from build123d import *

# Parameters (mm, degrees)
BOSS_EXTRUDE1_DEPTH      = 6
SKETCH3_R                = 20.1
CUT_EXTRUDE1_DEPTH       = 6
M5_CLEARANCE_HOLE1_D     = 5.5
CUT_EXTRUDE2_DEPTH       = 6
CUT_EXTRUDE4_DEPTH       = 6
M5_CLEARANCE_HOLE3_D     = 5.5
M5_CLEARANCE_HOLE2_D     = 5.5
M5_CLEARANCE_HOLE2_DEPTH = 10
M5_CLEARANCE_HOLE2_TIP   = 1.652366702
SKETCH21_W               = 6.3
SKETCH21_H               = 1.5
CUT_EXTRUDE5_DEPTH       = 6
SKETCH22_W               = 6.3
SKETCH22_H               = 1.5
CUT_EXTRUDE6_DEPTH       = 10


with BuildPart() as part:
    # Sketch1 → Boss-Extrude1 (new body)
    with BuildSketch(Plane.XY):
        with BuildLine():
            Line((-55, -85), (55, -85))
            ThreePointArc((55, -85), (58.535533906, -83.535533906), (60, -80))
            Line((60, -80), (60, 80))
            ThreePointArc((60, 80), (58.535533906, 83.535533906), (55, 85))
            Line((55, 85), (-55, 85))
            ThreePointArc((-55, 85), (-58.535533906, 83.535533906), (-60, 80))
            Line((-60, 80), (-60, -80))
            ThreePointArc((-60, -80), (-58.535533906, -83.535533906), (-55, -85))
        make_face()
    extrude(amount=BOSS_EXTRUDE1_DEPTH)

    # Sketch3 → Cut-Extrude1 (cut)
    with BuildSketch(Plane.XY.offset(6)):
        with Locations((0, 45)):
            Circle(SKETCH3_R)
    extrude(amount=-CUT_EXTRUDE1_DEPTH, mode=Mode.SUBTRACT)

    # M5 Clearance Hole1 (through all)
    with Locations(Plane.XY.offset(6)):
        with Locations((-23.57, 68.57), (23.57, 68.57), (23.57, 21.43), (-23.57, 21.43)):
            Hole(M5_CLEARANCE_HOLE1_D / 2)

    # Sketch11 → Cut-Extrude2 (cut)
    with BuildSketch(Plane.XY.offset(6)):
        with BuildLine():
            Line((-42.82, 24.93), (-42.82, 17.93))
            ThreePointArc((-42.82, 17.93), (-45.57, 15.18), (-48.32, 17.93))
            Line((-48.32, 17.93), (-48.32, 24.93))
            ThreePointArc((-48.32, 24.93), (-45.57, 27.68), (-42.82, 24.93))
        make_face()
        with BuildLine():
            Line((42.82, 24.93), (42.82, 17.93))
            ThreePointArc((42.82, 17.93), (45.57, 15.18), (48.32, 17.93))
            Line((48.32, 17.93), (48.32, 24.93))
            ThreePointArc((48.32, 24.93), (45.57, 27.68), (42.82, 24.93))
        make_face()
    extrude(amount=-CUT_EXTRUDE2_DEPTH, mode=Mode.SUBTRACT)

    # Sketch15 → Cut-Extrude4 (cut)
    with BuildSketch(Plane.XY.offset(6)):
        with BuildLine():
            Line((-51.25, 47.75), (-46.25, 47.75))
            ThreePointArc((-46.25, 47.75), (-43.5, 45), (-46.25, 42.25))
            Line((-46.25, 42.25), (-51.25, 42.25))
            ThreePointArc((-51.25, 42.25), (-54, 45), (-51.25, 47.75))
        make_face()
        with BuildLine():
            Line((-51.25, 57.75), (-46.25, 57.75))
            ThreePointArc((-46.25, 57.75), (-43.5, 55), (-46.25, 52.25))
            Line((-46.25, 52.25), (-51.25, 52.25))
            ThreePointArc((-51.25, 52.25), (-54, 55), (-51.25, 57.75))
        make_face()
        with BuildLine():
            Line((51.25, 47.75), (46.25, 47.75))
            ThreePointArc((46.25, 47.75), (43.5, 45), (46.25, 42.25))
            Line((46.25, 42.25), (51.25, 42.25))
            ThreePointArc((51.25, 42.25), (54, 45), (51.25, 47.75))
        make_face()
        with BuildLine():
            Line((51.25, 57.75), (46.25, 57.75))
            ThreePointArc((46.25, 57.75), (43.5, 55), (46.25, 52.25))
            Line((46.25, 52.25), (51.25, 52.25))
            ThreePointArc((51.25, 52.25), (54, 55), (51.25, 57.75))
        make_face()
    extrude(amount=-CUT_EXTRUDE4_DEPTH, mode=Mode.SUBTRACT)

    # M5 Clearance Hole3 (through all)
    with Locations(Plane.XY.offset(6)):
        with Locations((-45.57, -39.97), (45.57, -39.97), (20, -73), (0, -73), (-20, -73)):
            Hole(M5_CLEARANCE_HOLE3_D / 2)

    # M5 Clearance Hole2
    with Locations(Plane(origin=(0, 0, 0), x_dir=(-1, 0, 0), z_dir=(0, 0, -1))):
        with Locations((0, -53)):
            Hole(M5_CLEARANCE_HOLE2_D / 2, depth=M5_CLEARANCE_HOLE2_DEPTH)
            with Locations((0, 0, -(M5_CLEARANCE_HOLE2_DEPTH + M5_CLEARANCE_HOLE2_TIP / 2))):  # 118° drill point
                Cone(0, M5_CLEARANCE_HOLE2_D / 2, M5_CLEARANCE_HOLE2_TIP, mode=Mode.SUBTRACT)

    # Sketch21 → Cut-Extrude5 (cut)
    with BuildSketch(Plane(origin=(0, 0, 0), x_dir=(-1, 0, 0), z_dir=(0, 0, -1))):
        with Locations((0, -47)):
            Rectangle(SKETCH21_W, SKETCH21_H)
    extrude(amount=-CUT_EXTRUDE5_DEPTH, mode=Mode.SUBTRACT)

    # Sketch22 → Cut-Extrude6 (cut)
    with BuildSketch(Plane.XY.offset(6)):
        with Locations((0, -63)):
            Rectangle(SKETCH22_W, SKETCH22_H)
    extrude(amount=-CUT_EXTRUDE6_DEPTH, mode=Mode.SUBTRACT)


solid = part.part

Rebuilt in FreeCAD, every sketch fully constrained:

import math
import FreeCAD as App
import Part
import Sketcher

V = App.Vector
Q = App.Units.Quantity

doc = App.newDocument("Part")
body = doc.addObject("PartDesign::Body", "Body")

# Sketch on XY plane
sketch1 = body.newObject("Sketcher::SketchObject", "Sketch")
sketch1.AttachmentSupport = (doc.getObject("XY_Plane"), [""])
sketch1.MapMode = "FlatFace"
sketch1.addGeometry([
    Part.LineSegment(V(-55, -85, 0), V(55, -85, 0)),  # 0
    Part.ArcOfCircle(Part.Circle(V(55, -80, 0), V(0, 0, 1), 5), math.radians(-90), math.radians(0)),  # 1
    Part.LineSegment(V(60, -80, 0), V(60, 80, 0)),  # 2
    Part.ArcOfCircle(Part.Circle(V(55, 80, 0), V(0, 0, 1), 5), math.radians(0), math.radians(90)),  # 3
    Part.LineSegment(V(55, 85, 0), V(-55, 85, 0)),  # 4
    Part.ArcOfCircle(Part.Circle(V(-55, 80, 0), V(0, 0, 1), 5), math.radians(90), math.radians(180)),  # 5
    Part.LineSegment(V(-60, 80, 0), V(-60, -80, 0)),  # 6
    Part.ArcOfCircle(Part.Circle(V(-55, -80, 0), V(0, 0, 1), 5), math.radians(180), math.radians(270)),  # 7
], False)
sketch1.addConstraint([
    Sketcher.Constraint("Tangent", 0, 2, 1, 1),
    Sketcher.Constraint("Tangent", 1, 2, 2, 1),
    Sketcher.Constraint("Tangent", 2, 2, 3, 1),
    Sketcher.Constraint("Tangent", 3, 2, 4, 1),
    Sketcher.Constraint("Tangent", 4, 2, 5, 1),
    Sketcher.Constraint("Tangent", 5, 2, 6, 1),
    Sketcher.Constraint("Tangent", 6, 2, 7, 1),
    Sketcher.Constraint("Tangent", 7, 2, 0, 1),
    Sketcher.Constraint("Horizontal", 0),
    Sketcher.Constraint("Vertical", 2),
    Sketcher.Constraint("Horizontal", 4),
    Sketcher.Constraint("Vertical", 6),
    Sketcher.Constraint("Equal", 1, 3),
    Sketcher.Constraint("Equal", 3, 5),
    Sketcher.Constraint("Equal", 5, 7),
    Sketcher.Constraint("Symmetric", 1, 3, 5, 3, -1, 1),
    Sketcher.Constraint("Radius", 1, Q("5 mm")),
    Sketcher.Constraint("DistanceX", 0, 1, 0, 2, Q("110 mm")),
    Sketcher.Constraint("DistanceY", 2, 1, 2, 2, Q("160 mm")),
])
pad1 = body.newObject("PartDesign::Pad", "Pad")
pad1.Profile = sketch1
pad1.Length = 6

# Sketch on XY plane
sketch2 = body.newObject("Sketcher::SketchObject", "Sketch001")
sketch2.AttachmentSupport = (doc.getObject("XY_Plane"), [""])
sketch2.MapMode = "FlatFace"
sketch2.AttachmentOffset = App.Placement(V(0, 0, 6), App.Rotation())
sketch2.addGeometry(Part.Circle(V(0, 45, 0), V(0, 0, 1), 20.1), False)
sketch2.addConstraint([
    Sketcher.Constraint("PointOnObject", 0, 3, -2),
    Sketcher.Constraint("Diameter", 0, Q("40.2 mm")),
    Sketcher.Constraint("DistanceY", -1, 1, 0, 3, Q("45 mm")),
])
pocket1 = body.newObject("PartDesign::Pocket", "Pocket")
pocket1.Profile = sketch2
pocket1.Length = 6

# Sketch on XY plane
sketch3 = body.newObject("Sketcher::SketchObject", "Sketch002")
sketch3.AttachmentSupport = (doc.getObject("XY_Plane"), [""])
sketch3.MapMode = "FlatFace"
sketch3.AttachmentOffset = App.Placement(V(0, 0, 6), App.Rotation())
sketch3.addGeometry([
    Part.Circle(V(-23.57, 68.57, 0), V(0, 0, 1), 2.75),
    Part.Circle(V(23.57, 68.57, 0), V(0, 0, 1), 2.75),
    Part.Circle(V(23.57, 21.43, 0), V(0, 0, 1), 2.75),
    Part.Circle(V(-23.57, 21.43, 0), V(0, 0, 1), 2.75),
], False)
sketch3.addConstraint([
    Sketcher.Constraint("Equal", 0, 1),
    Sketcher.Constraint("Equal", 1, 2),
    Sketcher.Constraint("Equal", 2, 3),
    Sketcher.Constraint("Symmetric", 0, 3, 1, 3, -2),
    Sketcher.Constraint("Symmetric", 2, 3, 3, 3, -2),
    Sketcher.Constraint("Vertical", 1, 3, 2, 3),
    Sketcher.Constraint("Diameter", 0, Q("5.5 mm")),
    Sketcher.Constraint("DistanceX", 0, 3, -1, 1, Q("23.57 mm")),
    Sketcher.Constraint("DistanceY", -1, 1, 0, 3, Q("68.57 mm")),
    Sketcher.Constraint("DistanceY", -1, 1, 2, 3, Q("21.43 mm")),
])
doc.recompute()
hole = body.newObject("PartDesign::Hole", "Hole")
hole.Profile = sketch3
hole.ThreadType = "None"
hole.Diameter = 5.5
hole.DepthType = "ThroughAll"

# Sketch on XY plane
sketch4 = body.newObject("Sketcher::SketchObject", "Sketch003")
sketch4.AttachmentSupport = (doc.getObject("XY_Plane"), [""])
sketch4.MapMode = "FlatFace"
sketch4.AttachmentOffset = App.Placement(V(0, 0, 6), App.Rotation())
sketch4.addGeometry([
    Part.LineSegment(V(-42.82, 17.93, 0), V(-42.82, 24.93, 0)),  # 0
    Part.ArcOfCircle(Part.Circle(V(-45.57, 24.93, 0), V(0, 0, 1), 2.75), math.radians(0), math.radians(180)),  # 1
    Part.LineSegment(V(-48.32, 24.93, 0), V(-48.32, 17.93, 0)),  # 2
    Part.ArcOfCircle(Part.Circle(V(-45.57, 17.93, 0), V(0, 0, 1), 2.75), math.radians(180), math.radians(360)),  # 3
    Part.LineSegment(V(42.82, 24.93, 0), V(42.82, 17.93, 0)),  # 4
    Part.ArcOfCircle(Part.Circle(V(45.57, 17.93, 0), V(0, 0, 1), 2.75), math.radians(180), math.radians(360)),  # 5
    Part.LineSegment(V(48.32, 17.93, 0), V(48.32, 24.93, 0)),  # 6
    Part.ArcOfCircle(Part.Circle(V(45.57, 24.93, 0), V(0, 0, 1), 2.75), math.radians(0), math.radians(180)),  # 7
], False)
sketch4.addConstraint([
    Sketcher.Constraint("Tangent", 0, 2, 1, 1),
    Sketcher.Constraint("Tangent", 1, 2, 2, 1),
    Sketcher.Constraint("Tangent", 2, 2, 3, 1),
    Sketcher.Constraint("Tangent", 3, 2, 0, 1),
    Sketcher.Constraint("Tangent", 4, 2, 5, 1),
    Sketcher.Constraint("Tangent", 5, 2, 6, 1),
    Sketcher.Constraint("Tangent", 6, 2, 7, 1),
    Sketcher.Constraint("Tangent", 7, 2, 4, 1),
    Sketcher.Constraint("Vertical", 0),
    Sketcher.Constraint("Vertical", 2),
    Sketcher.Constraint("Vertical", 4),
    Sketcher.Constraint("Vertical", 6),
    Sketcher.Constraint("Equal", 3, 5),
    Sketcher.Constraint("Symmetric", 3, 3, 5, 3, -2),
    Sketcher.Constraint("Horizontal", 1, 3, 7, 3),
    Sketcher.Constraint("DistanceY", 0, 1, 0, 2, Q("7 mm")),
    Sketcher.Constraint("Radius", 1, Q("2.75 mm")),
    Sketcher.Constraint("DistanceX", 1, 3, -1, 1, Q("45.57 mm")),
    Sketcher.Constraint("DistanceY", -1, 1, 1, 3, Q("24.93 mm")),
])
pocket2 = body.newObject("PartDesign::Pocket", "Pocket001")
pocket2.Profile = sketch4
pocket2.Length = 6

# Sketch on XY plane
sketch5 = body.newObject("Sketcher::SketchObject", "Sketch004")
sketch5.AttachmentSupport = (doc.getObject("XY_Plane"), [""])
sketch5.MapMode = "FlatFace"
sketch5.AttachmentOffset = App.Placement(V(0, 0, 6), App.Rotation())
sketch5.addGeometry([
    Part.LineSegment(V(-46.25, 47.75, 0), V(-51.25, 47.75, 0)),  # 0
    Part.ArcOfCircle(Part.Circle(V(-51.25, 45, 0), V(0, 0, 1), 2.75), math.radians(90), math.radians(270)),  # 1
    Part.LineSegment(V(-51.25, 42.25, 0), V(-46.25, 42.25, 0)),  # 2
    Part.ArcOfCircle(Part.Circle(V(-46.25, 45, 0), V(0, 0, 1), 2.75), math.radians(-90), math.radians(90)),  # 3
    Part.LineSegment(V(-46.25, 57.75, 0), V(-51.25, 57.75, 0)),  # 4
    Part.ArcOfCircle(Part.Circle(V(-51.25, 55, 0), V(0, 0, 1), 2.75), math.radians(90), math.radians(270)),  # 5
    Part.LineSegment(V(-51.25, 52.25, 0), V(-46.25, 52.25, 0)),  # 6
    Part.ArcOfCircle(Part.Circle(V(-46.25, 55, 0), V(0, 0, 1), 2.75), math.radians(-90), math.radians(90)),  # 7
    Part.LineSegment(V(51.25, 47.75, 0), V(46.25, 47.75, 0)),  # 8
    Part.ArcOfCircle(Part.Circle(V(46.25, 45, 0), V(0, 0, 1), 2.75), math.radians(90), math.radians(270)),  # 9
    Part.LineSegment(V(46.25, 42.25, 0), V(51.25, 42.25, 0)),  # 10
    Part.ArcOfCircle(Part.Circle(V(51.25, 45, 0), V(0, 0, 1), 2.75), math.radians(-90), math.radians(90)),  # 11
    Part.LineSegment(V(51.25, 57.75, 0), V(46.25, 57.75, 0)),  # 12
    Part.ArcOfCircle(Part.Circle(V(46.25, 55, 0), V(0, 0, 1), 2.75), math.radians(90), math.radians(270)),  # 13
    Part.LineSegment(V(46.25, 52.25, 0), V(51.25, 52.25, 0)),  # 14
    Part.ArcOfCircle(Part.Circle(V(51.25, 55, 0), V(0, 0, 1), 2.75), math.radians(-90), math.radians(90)),  # 15
], False)
sketch5.addConstraint([
    Sketcher.Constraint("Tangent", 0, 2, 1, 1),
    Sketcher.Constraint("Tangent", 1, 2, 2, 1),
    Sketcher.Constraint("Tangent", 2, 2, 3, 1),
    Sketcher.Constraint("Tangent", 3, 2, 0, 1),
    Sketcher.Constraint("Tangent", 4, 2, 5, 1),
    Sketcher.Constraint("Tangent", 5, 2, 6, 1),
    Sketcher.Constraint("Tangent", 6, 2, 7, 1),
    Sketcher.Constraint("Tangent", 7, 2, 4, 1),
    Sketcher.Constraint("Tangent", 8, 2, 9, 1),
    Sketcher.Constraint("Tangent", 9, 2, 10, 1),
    Sketcher.Constraint("Tangent", 10, 2, 11, 1),
    Sketcher.Constraint("Tangent", 11, 2, 8, 1),
    Sketcher.Constraint("Tangent", 12, 2, 13, 1),
    Sketcher.Constraint("Tangent", 13, 2, 14, 1),
    Sketcher.Constraint("Tangent", 14, 2, 15, 1),
    Sketcher.Constraint("Tangent", 15, 2, 12, 1),
    Sketcher.Constraint("Horizontal", 0),
    Sketcher.Constraint("Horizontal", 2),
    Sketcher.Constraint("Horizontal", 4),
    Sketcher.Constraint("Horizontal", 6),
    Sketcher.Constraint("Horizontal", 8),
    Sketcher.Constraint("Horizontal", 10),
    Sketcher.Constraint("Horizontal", 12),
    Sketcher.Constraint("Horizontal", 14),
    Sketcher.Constraint("Equal", 3, 5),
    Sketcher.Constraint("Equal", 7, 9),
    Sketcher.Constraint("Equal", 11, 13),
    Sketcher.Constraint("Symmetric", 3, 3, 9, 3, -2),
    Sketcher.Constraint("Symmetric", 7, 3, 13, 3, -2),
    Sketcher.Constraint("Vertical", 1, 3, 5, 3),
    Sketcher.Constraint("Vertical", 3, 3, 7, 3),
    Sketcher.Constraint("Vertical", 11, 3, 15, 3),
    Sketcher.Constraint("Equal", 6, 8),
    Sketcher.Constraint("DistanceX", 0, 2, 0, 1, Q("5 mm")),
    Sketcher.Constraint("Radius", 1, Q("2.75 mm")),
    Sketcher.Constraint("DistanceY", -1, 1, 1, 3, Q("45 mm")),
    Sketcher.Constraint("DistanceY", -1, 1, 5, 3, Q("55 mm")),
    Sketcher.Constraint("DistanceX", 3, 3, 9, 3, Q("92.5 mm")),
])
pocket3 = body.newObject("PartDesign::Pocket", "Pocket002")
pocket3.Profile = sketch5
pocket3.Length = 6

# Sketch on XY plane
sketch6 = body.newObject("Sketcher::SketchObject", "Sketch005")
sketch6.AttachmentSupport = (doc.getObject("XY_Plane"), [""])
sketch6.MapMode = "FlatFace"
sketch6.AttachmentOffset = App.Placement(V(0, 0, 6), App.Rotation())
sketch6.addGeometry([
    Part.Circle(V(-45.57, -39.97, 0), V(0, 0, 1), 2.75),  # 0
    Part.Circle(V(45.57, -39.97, 0), V(0, 0, 1), 2.75),  # 1
    Part.Circle(V(20, -73, 0), V(0, 0, 1), 2.75),  # 2
    Part.Circle(V(0, -73, 0), V(0, 0, 1), 2.75),  # 3
    Part.Circle(V(-20, -73, 0), V(0, 0, 1), 2.75),  # 4
], False)
sketch6.addConstraint([
    Sketcher.Constraint("Equal", 0, 1),
    Sketcher.Constraint("Equal", 1, 2),
    Sketcher.Constraint("Equal", 2, 3),
    Sketcher.Constraint("Equal", 3, 4),
    Sketcher.Constraint("Symmetric", 0, 3, 1, 3, -2),
    Sketcher.Constraint("Symmetric", 2, 3, 4, 3, -2),
    Sketcher.Constraint("PointOnObject", 3, 3, -2),
    Sketcher.Constraint("Horizontal", 2, 3, 3, 3),
    Sketcher.Constraint("Diameter", 0, Q("5.5 mm")),
    Sketcher.Constraint("DistanceX", -1, 1, 2, 3, Q("20 mm")),
    Sketcher.Constraint("DistanceY", 2, 3, -1, 1, Q("73 mm")),
    Sketcher.Constraint("DistanceX", 0, 3, -1, 1, Q("45.57 mm")),
    Sketcher.Constraint("DistanceY", 0, 3, -1, 1, Q("39.97 mm")),
])
doc.recompute()
hole2 = body.newObject("PartDesign::Hole", "Hole001")
hole2.Profile = sketch6
hole2.ThreadType = "None"
hole2.Diameter = 5.5
hole2.DepthType = "ThroughAll"

# Sketch on XY plane
sketch7 = body.newObject("Sketcher::SketchObject", "Sketch006")
sketch7.AttachmentSupport = (doc.getObject("XY_Plane"), [""])
sketch7.MapMode = "FlatFace"
sketch7.addGeometry(Part.Circle(V(0, -53, 0), V(0, 0, 1), 2.75), False)
sketch7.addConstraint([
    Sketcher.Constraint("PointOnObject", 0, 3, -2),
    Sketcher.Constraint("Diameter", 0, Q("5.5 mm")),
    Sketcher.Constraint("DistanceY", 0, 3, -1, 1, Q("53 mm")),
])
doc.recompute()
hole3 = body.newObject("PartDesign::Hole", "Hole002")
hole3.Profile = sketch7
hole3.ThreadType = "None"
hole3.Diameter = 5.5
hole3.DepthType = "Dimension"
hole3.Depth = 10
hole3.DrillPoint = "Angled"
hole3.DrillPointAngle = 118
hole3.Reversed = True

# Sketch on XY plane
sketch8 = body.newObject("Sketcher::SketchObject", "Sketch007")
sketch8.AttachmentSupport = (doc.getObject("XY_Plane"), [""])
sketch8.MapMode = "FlatFace"
sketch8.addGeometry([
    Part.LineSegment(V(3.15, -46.25, 0), V(3.15, -47.75, 0)),
    Part.LineSegment(V(3.15, -47.75, 0), V(-3.15, -47.75, 0)),
    Part.LineSegment(V(-3.15, -47.75, 0), V(-3.15, -46.25, 0)),
    Part.LineSegment(V(-3.15, -46.25, 0), V(3.15, -46.25, 0)),
], False)
sketch8.addConstraint([
    Sketcher.Constraint("Coincident", 0, 2, 1, 1),
    Sketcher.Constraint("Coincident", 1, 2, 2, 1),
    Sketcher.Constraint("Coincident", 2, 2, 3, 1),
    Sketcher.Constraint("Coincident", 3, 2, 0, 1),
    Sketcher.Constraint("Vertical", 0),
    Sketcher.Constraint("Horizontal", 1),
    Sketcher.Constraint("Vertical", 2),
    Sketcher.Constraint("Horizontal", 3),
    Sketcher.Constraint("DistanceX", 1, 2, 1, 1, Q("6.3 mm")),
    Sketcher.Constraint("DistanceY", 0, 2, 0, 1, Q("1.5 mm")),
    Sketcher.Constraint("DistanceX", -1, 1, 0, 2, Q("3.15 mm")),
    Sketcher.Constraint("DistanceY", 0, 2, -1, 1, Q("47.75 mm")),
])
pocket4 = body.newObject("PartDesign::Pocket", "Pocket003")
pocket4.Profile = sketch8
pocket4.Length = 6
pocket4.Reversed = True

# Sketch on XY plane
sketch9 = body.newObject("Sketcher::SketchObject", "Sketch008")
sketch9.AttachmentSupport = (doc.getObject("XY_Plane"), [""])
sketch9.MapMode = "FlatFace"
sketch9.AttachmentOffset = App.Placement(V(0, 0, 6), App.Rotation())
sketch9.addGeometry([
    Part.LineSegment(V(-3.15, -62.25, 0), V(-3.15, -63.75, 0)),
    Part.LineSegment(V(-3.15, -63.75, 0), V(3.15, -63.75, 0)),
    Part.LineSegment(V(3.15, -63.75, 0), V(3.15, -62.25, 0)),
    Part.LineSegment(V(3.15, -62.25, 0), V(-3.15, -62.25, 0)),
], False)
sketch9.addConstraint([
    Sketcher.Constraint("Coincident", 0, 2, 1, 1),
    Sketcher.Constraint("Coincident", 1, 2, 2, 1),
    Sketcher.Constraint("Coincident", 2, 2, 3, 1),
    Sketcher.Constraint("Coincident", 3, 2, 0, 1),
    Sketcher.Constraint("Vertical", 0),
    Sketcher.Constraint("Horizontal", 1),
    Sketcher.Constraint("Vertical", 2),
    Sketcher.Constraint("Horizontal", 3),
    Sketcher.Constraint("DistanceX", 1, 1, 1, 2, Q("6.3 mm")),
    Sketcher.Constraint("DistanceY", 0, 2, 0, 1, Q("1.5 mm")),
    Sketcher.Constraint("DistanceX", 0, 2, -1, 1, Q("3.15 mm")),
    Sketcher.Constraint("DistanceY", 0, 2, -1, 1, Q("63.75 mm")),
])
pocket5 = body.newObject("PartDesign::Pocket", "Pocket004")
pocket5.Profile = sketch9
pocket5.Length = 10

doc.recompute()
